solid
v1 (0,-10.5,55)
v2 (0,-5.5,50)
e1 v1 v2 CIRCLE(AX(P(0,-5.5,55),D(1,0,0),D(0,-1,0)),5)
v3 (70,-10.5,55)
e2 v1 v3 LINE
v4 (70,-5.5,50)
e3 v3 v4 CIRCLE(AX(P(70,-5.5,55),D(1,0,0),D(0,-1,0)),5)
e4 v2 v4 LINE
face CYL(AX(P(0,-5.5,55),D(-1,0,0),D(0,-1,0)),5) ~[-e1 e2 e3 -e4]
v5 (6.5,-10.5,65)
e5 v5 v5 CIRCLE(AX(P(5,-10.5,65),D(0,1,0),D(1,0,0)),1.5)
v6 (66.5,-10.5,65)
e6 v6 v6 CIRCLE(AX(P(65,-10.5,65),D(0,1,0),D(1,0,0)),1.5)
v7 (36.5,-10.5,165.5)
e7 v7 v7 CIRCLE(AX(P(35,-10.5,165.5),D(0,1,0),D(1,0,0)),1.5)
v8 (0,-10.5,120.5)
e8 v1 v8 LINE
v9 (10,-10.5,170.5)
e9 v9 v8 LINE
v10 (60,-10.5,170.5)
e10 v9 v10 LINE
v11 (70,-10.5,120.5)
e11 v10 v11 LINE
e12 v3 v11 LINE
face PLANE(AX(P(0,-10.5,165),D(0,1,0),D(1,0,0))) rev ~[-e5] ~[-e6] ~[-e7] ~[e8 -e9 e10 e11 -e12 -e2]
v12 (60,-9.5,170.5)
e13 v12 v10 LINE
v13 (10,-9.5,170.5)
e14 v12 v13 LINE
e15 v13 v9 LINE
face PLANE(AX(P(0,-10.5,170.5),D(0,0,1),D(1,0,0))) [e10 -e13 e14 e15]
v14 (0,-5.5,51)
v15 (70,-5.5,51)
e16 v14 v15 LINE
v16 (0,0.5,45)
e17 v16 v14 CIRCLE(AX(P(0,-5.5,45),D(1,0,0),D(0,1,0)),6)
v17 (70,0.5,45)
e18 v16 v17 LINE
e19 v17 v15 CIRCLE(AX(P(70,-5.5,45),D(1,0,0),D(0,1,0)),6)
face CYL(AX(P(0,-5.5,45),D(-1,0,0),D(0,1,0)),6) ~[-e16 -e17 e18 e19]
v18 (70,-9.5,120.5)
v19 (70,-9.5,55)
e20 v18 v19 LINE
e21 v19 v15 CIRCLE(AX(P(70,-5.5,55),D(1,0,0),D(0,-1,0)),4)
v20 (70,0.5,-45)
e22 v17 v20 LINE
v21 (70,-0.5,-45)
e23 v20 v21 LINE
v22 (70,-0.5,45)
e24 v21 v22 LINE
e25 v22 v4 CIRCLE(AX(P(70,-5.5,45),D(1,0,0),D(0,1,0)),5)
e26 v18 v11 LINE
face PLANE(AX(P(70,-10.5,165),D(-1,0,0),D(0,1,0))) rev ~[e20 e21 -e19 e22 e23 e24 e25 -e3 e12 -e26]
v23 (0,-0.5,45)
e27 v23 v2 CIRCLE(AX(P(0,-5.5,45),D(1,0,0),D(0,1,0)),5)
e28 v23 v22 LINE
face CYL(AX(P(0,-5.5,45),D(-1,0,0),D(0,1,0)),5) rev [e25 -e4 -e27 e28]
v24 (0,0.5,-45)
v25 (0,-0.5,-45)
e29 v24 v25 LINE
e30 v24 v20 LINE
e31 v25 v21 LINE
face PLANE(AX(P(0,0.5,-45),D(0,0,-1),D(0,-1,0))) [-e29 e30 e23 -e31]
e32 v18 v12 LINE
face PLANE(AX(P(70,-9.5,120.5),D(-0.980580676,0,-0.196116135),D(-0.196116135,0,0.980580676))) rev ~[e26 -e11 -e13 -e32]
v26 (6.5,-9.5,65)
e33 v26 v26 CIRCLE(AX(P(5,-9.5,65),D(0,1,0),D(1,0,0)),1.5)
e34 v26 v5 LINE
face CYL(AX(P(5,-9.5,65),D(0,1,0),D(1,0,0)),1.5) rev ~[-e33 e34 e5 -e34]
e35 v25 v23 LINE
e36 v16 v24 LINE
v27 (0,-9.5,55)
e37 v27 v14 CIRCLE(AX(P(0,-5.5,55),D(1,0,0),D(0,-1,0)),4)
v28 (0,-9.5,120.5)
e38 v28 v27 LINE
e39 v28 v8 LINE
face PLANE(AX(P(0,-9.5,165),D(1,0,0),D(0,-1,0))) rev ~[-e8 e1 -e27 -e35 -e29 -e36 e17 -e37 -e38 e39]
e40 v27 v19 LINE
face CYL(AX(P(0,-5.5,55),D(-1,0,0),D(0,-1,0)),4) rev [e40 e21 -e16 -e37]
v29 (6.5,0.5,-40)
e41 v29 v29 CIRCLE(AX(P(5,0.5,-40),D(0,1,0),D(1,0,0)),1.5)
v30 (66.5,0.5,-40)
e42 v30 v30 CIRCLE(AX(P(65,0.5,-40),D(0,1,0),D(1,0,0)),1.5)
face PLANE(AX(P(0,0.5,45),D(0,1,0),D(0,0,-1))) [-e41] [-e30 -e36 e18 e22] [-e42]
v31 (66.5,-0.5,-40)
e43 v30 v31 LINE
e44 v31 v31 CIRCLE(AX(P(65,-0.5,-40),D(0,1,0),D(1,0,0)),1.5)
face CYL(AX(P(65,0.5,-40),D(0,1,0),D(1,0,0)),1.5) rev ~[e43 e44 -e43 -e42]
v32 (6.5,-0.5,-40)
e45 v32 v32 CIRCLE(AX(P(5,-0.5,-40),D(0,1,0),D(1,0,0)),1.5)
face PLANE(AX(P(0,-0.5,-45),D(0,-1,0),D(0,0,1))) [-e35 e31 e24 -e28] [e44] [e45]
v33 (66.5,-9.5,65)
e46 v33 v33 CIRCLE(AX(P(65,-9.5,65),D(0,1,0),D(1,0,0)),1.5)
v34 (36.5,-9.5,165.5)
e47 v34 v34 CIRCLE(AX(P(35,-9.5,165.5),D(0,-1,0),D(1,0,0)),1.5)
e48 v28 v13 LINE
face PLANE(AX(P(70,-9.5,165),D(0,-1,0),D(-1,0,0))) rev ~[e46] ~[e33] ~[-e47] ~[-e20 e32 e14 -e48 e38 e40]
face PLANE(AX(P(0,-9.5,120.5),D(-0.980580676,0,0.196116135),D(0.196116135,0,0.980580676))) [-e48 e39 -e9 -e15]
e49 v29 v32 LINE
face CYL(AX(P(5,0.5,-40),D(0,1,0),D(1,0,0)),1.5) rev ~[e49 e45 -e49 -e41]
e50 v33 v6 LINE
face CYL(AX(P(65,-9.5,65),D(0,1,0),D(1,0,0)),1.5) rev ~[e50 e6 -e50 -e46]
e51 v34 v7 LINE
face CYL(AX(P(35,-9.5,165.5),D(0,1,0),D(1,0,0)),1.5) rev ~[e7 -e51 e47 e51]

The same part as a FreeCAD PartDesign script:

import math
import FreeCAD as App
import Part
import Sketcher

V = App.Vector


def add_polygon(sketch, points):
    """Adds a closed chain of lines whose ends are joined by coincident constraints."""
    first, n = sketch.GeometryCount, len(points)
    for a, b in zip(points, points[1:] + points[:1]):
        sketch.addGeometry(Part.LineSegment(App.Vector(*a, 0), App.Vector(*b, 0)), False)
    for i in range(n):
        sketch.addConstraint(Sketcher.Constraint("Coincident", first + i, 2, first + (i + 1) % n, 1))

doc = App.newDocument("Part")
params = doc.addObject("Spreadsheet::Sheet", "Params")
for row, (alias, value) in enumerate([
    ("sketch1_radius", "5 mm"),
    ("sketch1_radius2", "6 mm"),
    ("sketch1_height", "90 mm"),
    ("sketch1_height2", "110 mm"),
    ("pad1_length", "70 mm"),
    ("sketch2_diameter", "3 mm"),
    ("pocket1_length", "1 mm"),
    ("sketch3_diameter", "3 mm"),
    ("pocket2_length", "1 mm"),
    ("sketch4_width", "70 mm"),
    ("sketch4_height", "1 mm"),
    ("pad2_length", "5.5 mm"),
    ("sketch5_diameter", "3 mm"),
    ("sketch6_height", "50 mm"),
    ("sketch6_width", "10 mm"),
], start=1):
    params.set(f"A{row}", alias)
    params.set(f"B{row}", "=" + value)
    params.setAlias(f"B{row}", alias)

body = doc.addObject("PartDesign::Body", "Body")

sketch1 = body.newObject("Sketcher::SketchObject", "Sketch")
sketch1.AttachmentSupport = (doc.getObject("YZ_Plane"), [""])
sketch1.MapMode = "FlatFace"
sketch1.addGeometry([
    Part.ArcOfCircle(Part.Circle(V(-5.5, 45, 0), V(0, 0, 1), 5), math.radians(0), math.radians(90)),
    Part.LineSegment(V(-0.5, 45, 0), V(-0.5, -45, 0)),
    Part.LineSegment(V(-0.5, -45, 0), V(0.5, -45, 0)),
    Part.LineSegment(V(0.5, -45, 0), V(0.5, 45, 0)),
    Part.ArcOfCircle(Part.Circle(V(-5.5, 45, 0), V(0, 0, 1), 6), math.radians(0), math.radians(90)),
    Part.ArcOfCircle(Part.Circle(V(-5.5, 55, 0), V(0, 0, 1), 4), math.radians(180), math.radians(270)),
    Part.LineSegment(V(-9.5, 55, 0), V(-9.5, 165, 0)),
    Part.LineSegment(V(-9.5, 165, 0), V(-10.5, 165, 0)),
    Part.LineSegment(V(-10.5, 165, 0), V(-10.5, 55, 0)),
    Part.ArcOfCircle(Part.Circle(V(-5.5, 55, 0), V(0, 0, 1), 5), math.radians(180), math.radians(270)),
], False)
sketch1.addConstraint([
    Sketcher.Constraint("Tangent", 0, 1, 1, 1),
    Sketcher.Constraint("Coincident", 1, 2, 2, 1),
    Sketcher.Constraint("Coincident", 2, 2, 3, 1),
    Sketcher.Constraint("Tangent", 3, 2, 4, 1),
    Sketcher.Constraint("Tangent", 4, 2, 5, 2),
    Sketcher.Constraint("Tangent", 5, 1, 6, 1),
    Sketcher.Constraint("Coincident", 6, 2, 7, 1),
    Sketcher.Constraint("Coincident", 7, 2, 8, 1),
    Sketcher.Constraint("Tangent", 8, 2, 9, 1),
    Sketcher.Constraint("Tangent", 9, 2, 0, 2),
    Sketcher.Constraint("Vertical", 1),
    Sketcher.Constraint("Horizontal", 2),
    Sketcher.Constraint("Vertical", 3),
    Sketcher.Constraint("Vertical", 6),
    Sketcher.Constraint("Horizontal", 7),
    Sketcher.Constraint("Vertical", 8),
    Sketcher.Constraint("Coincident", 4, 3, 0, 3),
    Sketcher.Constraint("Coincident", 9, 3, 5, 3),
    Sketcher.Constraint("Equal", 0, 9),
    Sketcher.Constraint("Symmetric", 0, 1, 2, 2, -1, 1),
    Sketcher.Constraint("Vertical", 4, 3, 5, 3),
    Sketcher.Constraint("Radius", 0, 5.0),
    Sketcher.Constraint("Radius", 4, 6.0),
    Sketcher.Constraint("DistanceY", 1, 2, 1, 1, 90.0),
    Sketcher.Constraint("DistanceY", 6, 1, 6, 2, 110.0),
])
sketch1.setExpression("Constraints[21]", "Params.sketch1_radius")
sketch1.setExpression("Constraints[22]", "Params.sketch1_radius2")
sketch1.setExpression("Constraints[23]", "Params.sketch1_height")
sketch1.setExpression("Constraints[24]", "Params.sketch1_height2")
pad1 = body.newObject("PartDesign::Pad", "Pad")
pad1.Profile = sketch1
pad1.setExpression("Length", "Params.pad1_length")

sketch2 = body.newObject("Sketcher::SketchObject", "Sketch001")
sketch2.AttachmentSupport = (doc.getObject("XZ_Plane"), [""])
sketch2.MapMode = "FlatFace"
sketch2.AttachmentOffset = App.Placement(V(0, 0, -0.5), App.Rotation())
sketch2.addGeometry([
    Part.Circle(V(5, -40, 0), V(0, 0, 1), 1.5),
    Part.Circle(V(65, -40, 0), V(0, 0, 1), 1.5),
], False)
sketch2.addConstraint([
    Sketcher.Constraint("Equal", 0, 1),
    Sketcher.Constraint("Horizontal", 0, 3, 1, 3),
    Sketcher.Constraint("Diameter", 0, 3.0),
    Sketcher.Constraint("DistanceX", -1, 1, 0, 3, 5.0),
    Sketcher.Constraint("DistanceY", 0, 3, -1, 1, 40.0),
    Sketcher.Constraint("DistanceX", -1, 1, 1, 3, 65.0),
])
sketch2.setExpression("Constraints[2]", "Params.sketch2_diameter")
pocket1 = body.newObject("PartDesign::Pocket", "Pocket")
pocket1.Profile = sketch2
pocket1.setExpression("Length", "Params.pocket1_length")
pocket1.Reversed = True

sketch3 = body.newObject("Sketcher::SketchObject", "Sketch002")
sketch3.AttachmentSupport = (doc.getObject("XZ_Plane"), [""])
sketch3.MapMode = "FlatFace"
sketch3.AttachmentOffset = App.Placement(V(0, 0, 9.5), App.Rotation())
sketch3.addGeometry([
    Part.Circle(V(5, 65, 0), V(0, 0, 1), 1.5),
    Part.Circle(V(65, 65, 0), V(0, 0, 1), 1.5),
], False)
sketch3.addConstraint([
    Sketcher.Constraint("Equal", 0, 1),
    Sketcher.Constraint("Horizontal", 0, 3, 1, 3),
    Sketcher.Constraint("Diameter", 0, 3.0),
    Sketcher.Constraint("DistanceX", -1, 1, 0, 3, 5.0),
    Sketcher.Constraint("DistanceY", -1, 1, 0, 3, 65.0),
    Sketcher.Constraint("DistanceX", -1, 1, 1, 3, 65.0),
])
sketch3.setExpression("Constraints[2]", "Params.sketch3_diameter")
pocket2 = body.newObject("PartDesign::Pocket", "Pocket001")
pocket2.Profile = sketch3
pocket2.setExpression("Length", "Params.pocket2_length")
pocket2.Reversed = True

sketch4 = body.newObject("Sketcher::SketchObject", "Sketch003")
sketch4.AttachmentSupport = (doc.getObject("XY_Plane"), [""])
sketch4.MapMode = "FlatFace"
sketch4.AttachmentOffset = App.Placement(V(0, 0, 165), App.Rotation())
add_polygon(sketch4, [(0, -9.5), (0, -10.5), (70, -10.5), (70, -9.5)])
sketch4.addConstraint([
    Sketcher.Constraint("Vertical", 0),
    Sketcher.Constraint("Horizontal", 1),
    Sketcher.Constraint("Vertical", 2),
    Sketcher.Constraint("Horizontal", 3),
    Sketcher.Constraint("PointOnObject", 0, 2, -2),
    Sketcher.Constraint("DistanceX", 1, 1, 1, 2, 70.0),
    Sketcher.Constraint("DistanceY", 0, 2, 0, 1, 1.0),
    Sketcher.Constraint("DistanceY", 0, 2, -1, 1, 10.5),
])
sketch4.setExpression("Constraints[9]", "Params.sketch4_width")
sketch4.setExpression("Constraints[10]", "Params.sketch4_height")
pad2 = body.newObject("PartDesign::Pad", "Pad001")
pad2.Profile = sketch4
pad2.setExpression("Length", "Params.pad2_length")

sketch5 = body.newObject("Sketcher::SketchObject", "Sketch004")
sketch5.AttachmentSupport = (doc.getObject("XZ_Plane"), [""])
sketch5.MapMode = "FlatFace"
sketch5.AttachmentOffset = App.Placement(V(0, 0, 9.5), App.Rotation())
sketch5.addGeometry(Part.Circle(V(35, 165.5, 0), V(0, 0, 1), 1.5), False)
sketch5.addConstraint([
    Sketcher.Constraint("Diameter", 0, 3.0),
    Sketcher.Constraint("DistanceX", -1, 1, 0, 3, 35.0),
    Sketcher.Constraint("DistanceY", -1, 1, 0, 3, 165.5),
])
sketch5.setExpression("Constraints[0]", "Params.sketch5_diameter")
pocket3 = body.newObject("PartDesign::Pocket", "Pocket002")
pocket3.Profile = sketch5
pocket3.Type = "UpToFirst"
pocket3.Reversed = True

sketch6 = body.newObject("Sketcher::SketchObject", "Sketch005")
sketch6.AttachmentSupport = (doc.getObject("XZ_Plane"), [""])
sketch6.MapMode = "FlatFace"
sketch6.AttachmentOffset = App.Placement(V(0, 0, 9.5), App.Rotation())
add_polygon(sketch6, [(0, 170), (10, 170), (0, 120)])
add_polygon(sketch6, [(60, 170), (70, 170), (70, 120)])
sketch6.addConstraint([
    Sketcher.Constraint("Horizontal", 0),
    Sketcher.Constraint("Vertical", 2),
    Sketcher.Constraint("Horizontal", 3),
    Sketcher.Constraint("Vertical", 4),
    Sketcher.Constraint("PointOnObject", 1, 2, -2),
    Sketcher.Constraint("Horizontal", 2, 2, 3, 2),
    Sketcher.Constraint("Horizontal", 1, 2, 4, 2),
    Sketcher.Constraint("Equal", 0, 3),
    Sketcher.Constraint("DistanceY", 2, 1, 2, 2, 50.0),
    Sketcher.Constraint("DistanceX", 0, 2, 5, 2, 50.0),
    Sketcher.Constraint("DistanceX", 0, 1, 0, 2, 10.0),
    Sketcher.Constraint("DistanceY", -1, 1, 0, 2, 170.5),
])
sketch6.setExpression("Constraints[14]", "Params.sketch6_height")
sketch6.setExpression("Constraints[16]", "Params.sketch6_width")
pocket4 = body.newObject("PartDesign::Pocket", "Pocket003")
pocket4.Profile = sketch6
pocket4.Type = "UpToFirst"
pocket4.Reversed = True

doc.recompute()
